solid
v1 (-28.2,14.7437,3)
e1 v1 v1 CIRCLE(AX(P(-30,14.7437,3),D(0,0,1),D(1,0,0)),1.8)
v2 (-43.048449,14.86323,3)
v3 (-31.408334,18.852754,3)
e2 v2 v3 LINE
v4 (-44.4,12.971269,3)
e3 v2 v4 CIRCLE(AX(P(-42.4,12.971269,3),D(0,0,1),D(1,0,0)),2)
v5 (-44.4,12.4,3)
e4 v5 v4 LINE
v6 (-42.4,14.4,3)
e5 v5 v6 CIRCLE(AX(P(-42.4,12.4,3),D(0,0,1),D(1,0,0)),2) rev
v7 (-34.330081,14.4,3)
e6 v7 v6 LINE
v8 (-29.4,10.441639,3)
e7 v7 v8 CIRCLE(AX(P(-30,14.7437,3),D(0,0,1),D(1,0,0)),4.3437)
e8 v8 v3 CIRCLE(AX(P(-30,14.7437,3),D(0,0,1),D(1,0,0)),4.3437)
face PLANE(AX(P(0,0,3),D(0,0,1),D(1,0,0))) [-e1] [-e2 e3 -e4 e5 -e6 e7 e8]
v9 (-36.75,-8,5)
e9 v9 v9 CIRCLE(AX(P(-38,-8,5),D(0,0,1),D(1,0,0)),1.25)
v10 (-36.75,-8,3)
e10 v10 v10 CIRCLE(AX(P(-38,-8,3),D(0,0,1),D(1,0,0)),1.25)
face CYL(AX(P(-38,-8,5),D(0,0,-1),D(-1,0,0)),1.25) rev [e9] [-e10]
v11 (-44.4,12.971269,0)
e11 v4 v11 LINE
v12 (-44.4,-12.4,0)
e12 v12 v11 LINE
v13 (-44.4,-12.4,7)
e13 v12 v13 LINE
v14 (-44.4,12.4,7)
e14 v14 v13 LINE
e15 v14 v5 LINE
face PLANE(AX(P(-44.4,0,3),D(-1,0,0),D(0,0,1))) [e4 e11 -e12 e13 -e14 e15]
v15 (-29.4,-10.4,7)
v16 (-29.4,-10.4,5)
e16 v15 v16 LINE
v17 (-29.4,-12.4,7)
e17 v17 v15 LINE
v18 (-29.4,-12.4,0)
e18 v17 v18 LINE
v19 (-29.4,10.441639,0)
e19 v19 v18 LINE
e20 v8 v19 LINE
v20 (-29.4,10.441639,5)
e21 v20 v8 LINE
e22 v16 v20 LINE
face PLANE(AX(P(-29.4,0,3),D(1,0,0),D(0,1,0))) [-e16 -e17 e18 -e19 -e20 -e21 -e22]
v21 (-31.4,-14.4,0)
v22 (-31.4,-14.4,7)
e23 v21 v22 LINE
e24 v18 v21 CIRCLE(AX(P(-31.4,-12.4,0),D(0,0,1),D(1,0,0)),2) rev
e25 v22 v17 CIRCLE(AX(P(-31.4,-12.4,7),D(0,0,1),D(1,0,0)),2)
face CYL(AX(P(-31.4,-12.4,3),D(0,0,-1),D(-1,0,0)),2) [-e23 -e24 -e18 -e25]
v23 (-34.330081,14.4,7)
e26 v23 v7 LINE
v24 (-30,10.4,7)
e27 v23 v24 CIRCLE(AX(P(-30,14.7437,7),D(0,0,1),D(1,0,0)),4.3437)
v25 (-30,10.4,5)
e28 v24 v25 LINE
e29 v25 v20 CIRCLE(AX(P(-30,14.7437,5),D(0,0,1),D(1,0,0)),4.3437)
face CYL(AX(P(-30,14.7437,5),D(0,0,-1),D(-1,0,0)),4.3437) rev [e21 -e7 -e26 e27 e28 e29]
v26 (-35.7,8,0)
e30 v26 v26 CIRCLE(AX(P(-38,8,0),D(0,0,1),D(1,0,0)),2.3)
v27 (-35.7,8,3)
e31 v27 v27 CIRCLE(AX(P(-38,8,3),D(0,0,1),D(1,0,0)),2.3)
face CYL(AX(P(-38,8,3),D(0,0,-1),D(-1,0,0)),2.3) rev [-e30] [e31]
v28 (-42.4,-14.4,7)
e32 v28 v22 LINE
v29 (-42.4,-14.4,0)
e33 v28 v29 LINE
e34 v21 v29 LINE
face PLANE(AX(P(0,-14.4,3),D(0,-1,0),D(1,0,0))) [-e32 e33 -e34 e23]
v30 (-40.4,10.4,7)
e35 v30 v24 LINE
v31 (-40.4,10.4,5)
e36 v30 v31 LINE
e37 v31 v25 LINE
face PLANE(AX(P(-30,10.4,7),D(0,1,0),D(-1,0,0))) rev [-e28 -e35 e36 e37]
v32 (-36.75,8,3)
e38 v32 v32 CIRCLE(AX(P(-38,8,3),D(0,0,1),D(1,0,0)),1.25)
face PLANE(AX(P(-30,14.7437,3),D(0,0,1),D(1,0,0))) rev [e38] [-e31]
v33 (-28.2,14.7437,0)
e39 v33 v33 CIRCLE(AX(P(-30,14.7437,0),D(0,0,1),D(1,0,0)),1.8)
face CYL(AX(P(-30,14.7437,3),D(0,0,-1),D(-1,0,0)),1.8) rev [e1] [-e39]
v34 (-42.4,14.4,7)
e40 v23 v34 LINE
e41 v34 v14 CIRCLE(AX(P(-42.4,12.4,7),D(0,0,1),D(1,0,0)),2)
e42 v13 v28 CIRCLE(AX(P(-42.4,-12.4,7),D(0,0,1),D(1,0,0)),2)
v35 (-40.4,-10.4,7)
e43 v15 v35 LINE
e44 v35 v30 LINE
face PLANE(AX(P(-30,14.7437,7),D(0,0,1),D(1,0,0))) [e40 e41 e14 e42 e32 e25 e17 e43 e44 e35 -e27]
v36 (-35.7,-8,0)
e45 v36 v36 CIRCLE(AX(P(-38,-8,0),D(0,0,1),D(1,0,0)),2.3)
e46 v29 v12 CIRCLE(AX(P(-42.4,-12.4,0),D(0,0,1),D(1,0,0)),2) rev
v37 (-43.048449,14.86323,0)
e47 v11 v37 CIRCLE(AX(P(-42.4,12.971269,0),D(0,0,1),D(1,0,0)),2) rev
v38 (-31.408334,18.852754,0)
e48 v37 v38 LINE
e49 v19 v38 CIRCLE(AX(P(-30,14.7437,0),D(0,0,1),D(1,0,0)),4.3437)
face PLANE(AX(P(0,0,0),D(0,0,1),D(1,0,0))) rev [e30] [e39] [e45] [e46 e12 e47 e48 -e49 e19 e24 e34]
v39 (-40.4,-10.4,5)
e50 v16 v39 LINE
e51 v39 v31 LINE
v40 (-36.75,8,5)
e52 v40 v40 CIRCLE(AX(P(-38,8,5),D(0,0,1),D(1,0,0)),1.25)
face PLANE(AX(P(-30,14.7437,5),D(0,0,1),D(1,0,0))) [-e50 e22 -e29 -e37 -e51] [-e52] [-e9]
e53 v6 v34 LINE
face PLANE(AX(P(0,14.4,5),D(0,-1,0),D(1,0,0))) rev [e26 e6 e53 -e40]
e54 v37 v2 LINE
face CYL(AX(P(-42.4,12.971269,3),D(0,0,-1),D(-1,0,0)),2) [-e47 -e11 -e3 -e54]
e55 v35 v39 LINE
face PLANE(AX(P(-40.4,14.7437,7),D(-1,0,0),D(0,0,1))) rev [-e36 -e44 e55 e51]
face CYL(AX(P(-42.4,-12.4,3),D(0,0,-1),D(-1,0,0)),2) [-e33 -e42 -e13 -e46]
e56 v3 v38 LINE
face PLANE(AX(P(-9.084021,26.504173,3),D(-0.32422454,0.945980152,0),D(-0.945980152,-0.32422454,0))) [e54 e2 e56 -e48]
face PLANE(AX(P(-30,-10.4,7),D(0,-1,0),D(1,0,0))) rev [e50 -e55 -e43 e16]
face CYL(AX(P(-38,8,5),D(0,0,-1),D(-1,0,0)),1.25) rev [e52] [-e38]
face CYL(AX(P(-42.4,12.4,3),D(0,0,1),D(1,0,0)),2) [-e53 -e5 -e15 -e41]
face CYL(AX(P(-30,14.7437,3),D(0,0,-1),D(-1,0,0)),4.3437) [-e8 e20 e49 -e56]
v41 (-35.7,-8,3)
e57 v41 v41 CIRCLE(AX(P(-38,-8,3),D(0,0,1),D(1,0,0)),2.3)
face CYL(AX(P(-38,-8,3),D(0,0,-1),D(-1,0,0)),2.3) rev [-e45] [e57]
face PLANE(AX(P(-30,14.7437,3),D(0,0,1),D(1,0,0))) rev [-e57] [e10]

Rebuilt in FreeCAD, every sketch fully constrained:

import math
import FreeCAD as App
import Part
import Sketcher
Q = App.Units.Quantity


def edges_at(feature, points):
    """Names of the edges that pass closest to the given points."""
    edges = feature.Shape.Edges
    near = lambda p: min(range(len(edges)), key=lambda i: edges[i].distToShape(Part.Vertex(*p))[0])
    return sorted({f"Edge{near(p) + 1}" for p in points})

doc = App.newDocument("Part")
body = doc.addObject("PartDesign::Body", "Body")

# Sketch on XY plane
sketch1 = body.newObject("Sketcher::SketchObject", "Sketch")
sketch1.AttachmentSupport = (doc.getObject("XY_Plane"), [""])
sketch1.MapMode = "FlatFace"
sketch1.addGeometry(Part.LineSegment(App.Vector(-44.4, 14.4, 0), App.Vector(-44.4, -14.4, 0)), False)
sketch1.addGeometry(Part.LineSegment(App.Vector(-44.4, -14.4, 0), App.Vector(-29.4, -14.4, 0)), False)
sketch1.addGeometry(Part.LineSegment(App.Vector(-29.4, -14.4, 0), App.Vector(-29.4, 10.4, 0)), False)
sketch1.addGeometry(Part.ArcOfCircle(Part.Circle(App.Vector(-30, 14.7, 0), App.Vector(0, 0, 1), 4.3), math.radians(-82), math.radians(109)), False)
sketch1.addGeometry(Part.LineSegment(App.Vector(-31.4, 18.9, 0), App.Vector(-44.4, 14.4, 0)), False)
sketch1.addGeometry(Part.Circle(App.Vector(-38, -8, 0), App.Vector(0, 0, 1), 2.3), False)
sketch1.addGeometry(Part.Circle(App.Vector(-38, 8, 0), App.Vector(0, 0, 1), 2.3), False)
sketch1.addGeometry(Part.Circle(App.Vector(-30, 14.7, 0), App.Vector(0, 0, 1), 1.8), False)
sketch1.addConstraint(Sketcher.Constraint("Coincident", 0, 2, 1, 1))
sketch1.addConstraint(Sketcher.Constraint("Coincident", 1, 2, 2, 1))
sketch1.addConstraint(Sketcher.Constraint("Coincident", 2, 2, 3, 1))
sketch1.addConstraint(Sketcher.Constraint("Tangent", 3, 2, 4, 1))
sketch1.addConstraint(Sketcher.Constraint("Coincident", 4, 2, 0, 1))
sketch1.addConstraint(Sketcher.Constraint("Vertical", 0))
sketch1.addConstraint(Sketcher.Constraint("Horizontal", 1))
sketch1.addConstraint(Sketcher.Constraint("Vertical", 2))
sketch1.addConstraint(Sketcher.Constraint("Coincident", 7, 3, 3, 3))
sketch1.addConstraint(Sketcher.Constraint("Equal", 5, 6))
sketch1.addConstraint(Sketcher.Constraint("Symmetric", 5, 3, 6, 3, -1))
sketch1.addConstraint(Sketcher.Constraint("Diameter", 5, Q("4.6 mm")))
sketch1.addConstraint(Sketcher.Constraint("Diameter", 7, Q("3.6 mm")))
sketch1.addConstraint(Sketcher.Constraint("DistanceX", 1, 1, 1, 2, Q("15 mm")))
sketch1.addConstraint(Sketcher.Constraint("DistanceY", 0, 2, 0, 1, Q("28.8 mm")))
sketch1.addConstraint(Sketcher.Constraint("DistanceX", 3, 3, -1, 1, Q("30 mm")))
sketch1.addConstraint(Sketcher.Constraint("DistanceX", 5, 3, -1, 1, Q("38 mm")))
sketch1.addConstraint(Sketcher.Constraint("DistanceY", 5, 3, -1, 1, Q("8 mm")))
sketch1.addConstraint(Sketcher.Constraint("DistanceX", 0, 2, -1, 1, Q("44.4 mm")))
sketch1.addConstraint(Sketcher.Constraint("DistanceY", 0, 2, -1, 1, Q("14.4 mm")))
sketch1.addConstraint(Sketcher.Constraint("Radius", 3, Q("4.3437 mm")))
sketch1.addConstraint(Sketcher.Constraint("DistanceY", 2, 1, 2, 2, Q("24.841639 mm")))
pad1 = body.newObject("PartDesign::Pad", "Pad")
pad1.Profile = sketch1
pad1.Length = 3

# Sketch on XY plane
sketch2 = body.newObject("Sketcher::SketchObject", "Sketch001")
sketch2.AttachmentSupport = (doc.getObject("XY_Plane"), [""])
sketch2.MapMode = "FlatFace"
sketch2.AttachmentOffset = App.Placement(App.Vector(0, 0, 3), App.Rotation())
sketch2.addGeometry(Part.LineSegment(App.Vector(-29.4, -14.4, 0), App.Vector(-29.4, 10.4, 0)), False)
sketch2.addGeometry(Part.ArcOfCircle(Part.Circle(App.Vector(-30, 14.7, 0), App.Vector(0, 0, 1), 4.3), math.radians(-175), math.radians(-82)), False)
sketch2.addGeometry(Part.LineSegment(App.Vector(-34.3, 14.4, 0), App.Vector(-44.4, 14.4, 0)), False)
sketch2.addGeometry(Part.LineSegment(App.Vector(-44.4, 14.4, 0), App.Vector(-44.4, -14.4, 0)), False)
sketch2.addGeometry(Part.LineSegment(App.Vector(-44.4, -14.4, 0), App.Vector(-29.4, -14.4, 0)), False)
sketch2.addGeometry(Part.Circle(App.Vector(-38, -8, 0), App.Vector(0, 0, 1), 1.2), False)
sketch2.addGeometry(Part.Circle(App.Vector(-38, 8, 0), App.Vector(0, 0, 1), 1.2), False)
sketch2.addConstraint(Sketcher.Constraint("Coincident", 0, 2, 1, 2))
sketch2.addConstraint(Sketcher.Constraint("Coincident", 1, 1, 2, 1))
sketch2.addConstraint(Sketcher.Constraint("Coincident", 2, 2, 3, 1))
sketch2.addConstraint(Sketcher.Constraint("Coincident", 3, 2, 4, 1))
sketch2.addConstraint(Sketcher.Constraint("Coincident", 4, 2, 0, 1))
sketch2.addConstraint(Sketcher.Constraint("Vertical", 0))
sketch2.addConstraint(Sketcher.Constraint("Horizontal", 2))
sketch2.addConstraint(Sketcher.Constraint("Vertical", 3))
sketch2.addConstraint(Sketcher.Constraint("Horizontal", 4))
sketch2.addConstraint(Sketcher.Constraint("Equal", 5, 6))
sketch2.addConstraint(Sketcher.Constraint("Symmetric", 5, 3, 6, 3, -1))
sketch2.addConstraint(Sketcher.Constraint("Diameter", 5, Q("2.5 mm")))
sketch2.addConstraint(Sketcher.Constraint("DistanceX", 4, 1, 4, 2, Q("15 mm")))
sketch2.addConstraint(Sketcher.Constraint("DistanceY", 3, 2, 3, 1, Q("28.8 mm")))
sketch2.addConstraint(Sketcher.Constraint("DistanceX", 1, 3, -1, 1, Q("30 mm")))
sketch2.addConstraint(Sketcher.Constraint("DistanceX", 5, 3, -1, 1, Q("38 mm")))
sketch2.addConstraint(Sketcher.Constraint("DistanceY", 5, 3, -1, 1, Q("8 mm")))
sketch2.addConstraint(Sketcher.Constraint("DistanceX", 0, 2, -1, 1, Q("29.4 mm")))
sketch2.addConstraint(Sketcher.Constraint("DistanceY", -1, 1, 1, 1, Q("14.4 mm")))
sketch2.addConstraint(Sketcher.Constraint("Radius", 1, Q("4.3437 mm")))
sketch2.addConstraint(Sketcher.Constraint("DistanceX", 2, 2, 2, 1, Q("10.069919 mm")))
pad2 = body.newObject("PartDesign::Pad", "Pad001")
pad2.Profile = sketch2
pad2.Length = 2

# Sketch on XY plane
sketch3 = body.newObject("Sketcher::SketchObject", "Sketch002")
sketch3.AttachmentSupport = (doc.getObject("XY_Plane"), [""])
sketch3.MapMode = "FlatFace"
sketch3.AttachmentOffset = App.Placement(App.Vector(0, 0, 5), App.Rotation())
sketch3.addGeometry(Part.LineSegment(App.Vector(-29.4, -14.4, 0), App.Vector(-29.4, -10.4, 0)), False)
sketch3.addGeometry(Part.LineSegment(App.Vector(-29.4, -10.4, 0), App.Vector(-40.4, -10.4, 0)), False)
sketch3.addGeometry(Part.LineSegment(App.Vector(-40.4, -10.4, 0), App.Vector(-40.4, 10.4, 0)), False)
sketch3.addGeometry(Part.LineSegment(App.Vector(-40.4, 10.4, 0), App.Vector(-30, 10.4, 0)), False)
sketch3.addGeometry(Part.ArcOfCircle(Part.Circle(App.Vector(-30, 14.7, 0), App.Vector(0, 0, 1), 4.3), math.radians(-175), math.radians(-90)), False)
sketch3.addGeometry(Part.LineSegment(App.Vector(-34.3, 14.4, 0), App.Vector(-44.4, 14.4, 0)), False)
sketch3.addGeometry(Part.LineSegment(App.Vector(-44.4, 14.4, 0), App.Vector(-44.4, -14.4, 0)), False)
sketch3.addGeometry(Part.LineSegment(App.Vector(-44.4, -14.4, 0), App.Vector(-29.4, -14.4, 0)), False)
sketch3.addConstraint(Sketcher.Constraint("Coincident", 0, 2, 1, 1))
sketch3.addConstraint(Sketcher.Constraint("Coincident", 1, 2, 2, 1))
sketch3.addConstraint(Sketcher.Constraint("Coincident", 2, 2, 3, 1))
sketch3.addConstraint(Sketcher.Constraint("Tangent", 3, 2, 4, 2))
sketch3.addConstraint(Sketcher.Constraint("Coincident", 4, 1, 5, 1))
sketch3.addConstraint(Sketcher.Constraint("Coincident", 5, 2, 6, 1))
sketch3.addConstraint(Sketcher.Constraint("Coincident", 6, 2, 7, 1))
sketch3.addConstraint(Sketcher.Constraint("Coincident", 7, 2, 0, 1))
sketch3.addConstraint(Sketcher.Constraint("Vertical", 0))
sketch3.addConstraint(Sketcher.Constraint("Horizontal", 1))
sketch3.addConstraint(Sketcher.Constraint("Vertical", 2))
sketch3.addConstraint(Sketcher.Constraint("Horizontal", 3))
sketch3.addConstraint(Sketcher.Constraint("Horizontal", 5))
sketch3.addConstraint(Sketcher.Constraint("Vertical", 6))
sketch3.addConstraint(Sketcher.Constraint("Horizontal", 7))
sketch3.addConstraint(Sketcher.Constraint("DistanceX", 1, 2, 1, 1, Q("11 mm")))
sketch3.addConstraint(Sketcher.Constraint("DistanceX", 7, 1, 7, 2, Q("15 mm")))
sketch3.addConstraint(Sketcher.Constraint("DistanceY", 0, 1, 0, 2, Q("4 mm")))
sketch3.addConstraint(Sketcher.Constraint("DistanceX", 3, 1, 3, 2, Q("10.4 mm")))
sketch3.addConstraint(Sketcher.Constraint("DistanceY", 2, 1, 2, 2, Q("20.8 mm")))
sketch3.addConstraint(Sketcher.Constraint("DistanceY", 6, 2, 6, 1, Q("28.8 mm")))
sketch3.addConstraint(Sketcher.Constraint("DistanceX", 4, 3, -1, 1, Q("30 mm")))
sketch3.addConstraint(Sketcher.Constraint("DistanceY", 0, 2, -1, 1, Q("10.4 mm")))
sketch3.addConstraint(Sketcher.Constraint("Radius", 4, Q("4.3437 mm")))
pad3 = body.newObject("PartDesign::Pad", "Pad002")
pad3.Profile = sketch3
pad3.Length = 2
doc.recompute()

fillet = body.newObject("PartDesign::Fillet", "Fillet")
fillet.Base = (pad3, edges_at(pad3, [(-29.4, -14.4, 3.5), (-44.4, -14.4, 3.5), (-44.4, 14.4, 5)]))
fillet.Radius = 2
doc.recompute()

fillet2 = body.newObject("PartDesign::Fillet", "Fillet001")
fillet2.Base = (fillet, edges_at(fillet, [(-44.4, 14.4, 1.5)]))
fillet2.Radius = 2

doc.recompute()
